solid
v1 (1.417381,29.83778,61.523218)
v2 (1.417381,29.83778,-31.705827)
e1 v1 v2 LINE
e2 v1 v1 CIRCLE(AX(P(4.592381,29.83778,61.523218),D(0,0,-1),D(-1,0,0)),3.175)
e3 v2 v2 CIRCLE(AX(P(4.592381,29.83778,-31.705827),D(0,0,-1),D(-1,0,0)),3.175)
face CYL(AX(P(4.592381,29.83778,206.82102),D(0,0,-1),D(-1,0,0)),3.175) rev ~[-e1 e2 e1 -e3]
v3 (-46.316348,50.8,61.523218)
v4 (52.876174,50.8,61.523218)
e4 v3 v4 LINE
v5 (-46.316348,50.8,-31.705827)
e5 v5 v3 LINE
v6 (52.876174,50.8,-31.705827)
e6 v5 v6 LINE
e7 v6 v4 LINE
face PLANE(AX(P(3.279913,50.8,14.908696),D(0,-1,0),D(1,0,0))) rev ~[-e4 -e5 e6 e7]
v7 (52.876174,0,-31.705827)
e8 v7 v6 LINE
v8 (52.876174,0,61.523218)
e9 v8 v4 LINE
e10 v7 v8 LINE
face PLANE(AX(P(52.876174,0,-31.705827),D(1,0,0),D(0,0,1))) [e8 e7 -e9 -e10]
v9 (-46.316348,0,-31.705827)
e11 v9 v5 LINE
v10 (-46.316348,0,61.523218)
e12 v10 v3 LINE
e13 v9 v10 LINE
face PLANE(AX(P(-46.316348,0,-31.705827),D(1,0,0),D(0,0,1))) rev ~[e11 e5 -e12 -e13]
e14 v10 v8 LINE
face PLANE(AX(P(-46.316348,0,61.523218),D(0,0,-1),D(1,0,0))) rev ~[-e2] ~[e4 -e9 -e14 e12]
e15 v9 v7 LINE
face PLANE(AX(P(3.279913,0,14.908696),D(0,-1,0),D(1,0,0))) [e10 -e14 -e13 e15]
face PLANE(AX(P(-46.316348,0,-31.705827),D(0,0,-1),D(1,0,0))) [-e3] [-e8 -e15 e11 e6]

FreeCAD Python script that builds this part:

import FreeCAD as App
import Part
import Sketcher
from FreeCAD import Vector
Q = App.Units.Quantity


def add_polygon(sketch, points):
    """Adds a closed chain of lines whose ends are joined by coincident constraints."""
    first, n = sketch.GeometryCount, len(points)
    for a, b in zip(points, points[1:] + points[:1]):
        sketch.addGeometry(Part.LineSegment(App.Vector(*a, 0), App.Vector(*b, 0)), False)
    for i in range(n):
        sketch.addConstraint(Sketcher.Constraint("Coincident", first + i, 2, first + (i + 1) % n, 1))

doc = App.newDocument("Part")
body = doc.addObject("PartDesign::Body", "Body")

# Sketch on XZ plane
sketch1 = doc.addObject("Sketcher::SketchObject", "Sketch")
body.addObject(sketch1)
sketch1.AttachmentSupport = (doc.XZ_Plane, [""])
sketch1.MapMode = "FlatFace"
add_polygon(sketch1, [(-46, 62), (-46, -32), (53, -32), (53, 62)])  # lines 0-3
sketch1.addConstraint([
    Sketcher.Constraint("Vertical", 0),
    Sketcher.Constraint("Horizontal", 1),
    Sketcher.Constraint("Vertical", 2),
    Sketcher.Constraint("Horizontal", 3),
    Sketcher.Constraint("DistanceX", 1, 1, 1, 2, 99.192522),
    Sketcher.Constraint("DistanceY", 0, 2, 0, 1, 93.229045),
    Sketcher.Constraint("DistanceY", -1, 1, 2, 2, 61.523218),
    Sketcher.Constraint("DistanceX", 0, 2, -1, 1, 46.316348),
])
pad1 = doc.addObject("PartDesign::Pad", "Pad")
body.addObject(pad1)
pad1.Profile = sketch1
pad1.Length = Q("2 in")
pad1.Reversed = True

# Sketch on XY plane
sketch2 = doc.addObject("Sketcher::SketchObject", "Sketch001")
body.addObject(sketch2)
sketch2.AttachmentSupport = (doc.XY_Plane, [""])
sketch2.MapMode = "FlatFace"
sketch2.AttachmentOffset = App.Placement(Vector(0, 0, 61.523218), App.Rotation())
sketch2.addGeometry(Part.Circle(Vector(4.6, 29.8, 0), Vector(0, 0, 1), 3.2), False)
sketch2.addConstraint([
    Sketcher.Constraint("Diameter", 0, Q("0.25 in")),
    Sketcher.Constraint("DistanceX", -1, 1, 0, 3, 4.592381),
    Sketcher.Constraint("DistanceY", -1, 1, 0, 3, 29.83778),
])
doc.recompute()
hole = doc.addObject("PartDesign::Hole", "Hole")
body.addObject(hole)
hole.Profile = sketch2
hole.ThreadType = "None"
hole.Diameter = Q("0.25 in")
hole.DepthType = "ThroughAll"

doc.recompute()
